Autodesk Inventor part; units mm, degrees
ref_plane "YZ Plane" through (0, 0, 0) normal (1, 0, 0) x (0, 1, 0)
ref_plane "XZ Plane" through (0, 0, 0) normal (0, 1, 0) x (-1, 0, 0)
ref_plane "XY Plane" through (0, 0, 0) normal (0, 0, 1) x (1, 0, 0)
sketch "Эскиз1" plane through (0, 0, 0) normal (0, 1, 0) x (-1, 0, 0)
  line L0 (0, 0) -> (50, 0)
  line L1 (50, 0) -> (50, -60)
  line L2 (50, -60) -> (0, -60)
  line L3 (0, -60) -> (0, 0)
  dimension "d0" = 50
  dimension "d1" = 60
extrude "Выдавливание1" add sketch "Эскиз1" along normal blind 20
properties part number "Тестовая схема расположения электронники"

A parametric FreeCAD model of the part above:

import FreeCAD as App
import Part
import Sketcher
from FreeCAD import Vector
Q = App.Units.Quantity


def add_polygon(sketch, points):
    """Adds a closed chain of lines whose ends are joined by coincident constraints."""
    first, n = sketch.GeometryCount, len(points)
    for a, b in zip(points, points[1:] + points[:1]):
        sketch.addGeometry(Part.LineSegment(App.Vector(*a, 0), App.Vector(*b, 0)), False)
    for i in range(n):
        sketch.addConstraint(Sketcher.Constraint("Coincident", first + i, 2, first + (i + 1) % n, 1))

doc = App.newDocument("Part")
params = doc.addObject("Spreadsheet::Sheet", "Params")
for row, (alias, value) in enumerate([
    ("sketch1_width", "50 mm"),
    ("sketch1_height", "60 mm"),
    ("pad1_length", "20 mm"),
], start=1):
    params.set(f"A{row}", alias)
    params.set(f"B{row}", "=" + value)
    params.setAlias(f"B{row}", alias)

body = doc.addObject("PartDesign::Body", "Body")

sketch1 = body.newObject("Sketcher::SketchObject", "Sketch")
sketch1.AttachmentSupport = (doc.getObject("XZ_Plane"), [""])
sketch1.MapMode = "FlatFace"
add_polygon(sketch1, [(-50, 0), (0, 0), (0, -60), (-50, -60)])
sketch1.addConstraint([
    Sketcher.Constraint("Horizontal", 0),
    Sketcher.Constraint("Vertical", 1),
    Sketcher.Constraint("Horizontal", 2),
    Sketcher.Constraint("Vertical", 3),
    Sketcher.Constraint("Coincident", 0, 2, -1, 1),
    Sketcher.Constraint("DistanceX", 0, 1, 0, 2, Q("50 mm")),
    Sketcher.Constraint("DistanceY", 1, 2, 1, 1, Q("60 mm")),
])
sketch1.setExpression("Constraints[9]", "Params.sketch1_width")
sketch1.setExpression("Constraints[10]", "Params.sketch1_height")
pad1 = body.newObject("PartDesign::Pad", "Pad")
pad1.Profile = sketch1
pad1.setExpression("Length", "Params.pad1_length")
pad1.Reversed = True

doc.recompute()
